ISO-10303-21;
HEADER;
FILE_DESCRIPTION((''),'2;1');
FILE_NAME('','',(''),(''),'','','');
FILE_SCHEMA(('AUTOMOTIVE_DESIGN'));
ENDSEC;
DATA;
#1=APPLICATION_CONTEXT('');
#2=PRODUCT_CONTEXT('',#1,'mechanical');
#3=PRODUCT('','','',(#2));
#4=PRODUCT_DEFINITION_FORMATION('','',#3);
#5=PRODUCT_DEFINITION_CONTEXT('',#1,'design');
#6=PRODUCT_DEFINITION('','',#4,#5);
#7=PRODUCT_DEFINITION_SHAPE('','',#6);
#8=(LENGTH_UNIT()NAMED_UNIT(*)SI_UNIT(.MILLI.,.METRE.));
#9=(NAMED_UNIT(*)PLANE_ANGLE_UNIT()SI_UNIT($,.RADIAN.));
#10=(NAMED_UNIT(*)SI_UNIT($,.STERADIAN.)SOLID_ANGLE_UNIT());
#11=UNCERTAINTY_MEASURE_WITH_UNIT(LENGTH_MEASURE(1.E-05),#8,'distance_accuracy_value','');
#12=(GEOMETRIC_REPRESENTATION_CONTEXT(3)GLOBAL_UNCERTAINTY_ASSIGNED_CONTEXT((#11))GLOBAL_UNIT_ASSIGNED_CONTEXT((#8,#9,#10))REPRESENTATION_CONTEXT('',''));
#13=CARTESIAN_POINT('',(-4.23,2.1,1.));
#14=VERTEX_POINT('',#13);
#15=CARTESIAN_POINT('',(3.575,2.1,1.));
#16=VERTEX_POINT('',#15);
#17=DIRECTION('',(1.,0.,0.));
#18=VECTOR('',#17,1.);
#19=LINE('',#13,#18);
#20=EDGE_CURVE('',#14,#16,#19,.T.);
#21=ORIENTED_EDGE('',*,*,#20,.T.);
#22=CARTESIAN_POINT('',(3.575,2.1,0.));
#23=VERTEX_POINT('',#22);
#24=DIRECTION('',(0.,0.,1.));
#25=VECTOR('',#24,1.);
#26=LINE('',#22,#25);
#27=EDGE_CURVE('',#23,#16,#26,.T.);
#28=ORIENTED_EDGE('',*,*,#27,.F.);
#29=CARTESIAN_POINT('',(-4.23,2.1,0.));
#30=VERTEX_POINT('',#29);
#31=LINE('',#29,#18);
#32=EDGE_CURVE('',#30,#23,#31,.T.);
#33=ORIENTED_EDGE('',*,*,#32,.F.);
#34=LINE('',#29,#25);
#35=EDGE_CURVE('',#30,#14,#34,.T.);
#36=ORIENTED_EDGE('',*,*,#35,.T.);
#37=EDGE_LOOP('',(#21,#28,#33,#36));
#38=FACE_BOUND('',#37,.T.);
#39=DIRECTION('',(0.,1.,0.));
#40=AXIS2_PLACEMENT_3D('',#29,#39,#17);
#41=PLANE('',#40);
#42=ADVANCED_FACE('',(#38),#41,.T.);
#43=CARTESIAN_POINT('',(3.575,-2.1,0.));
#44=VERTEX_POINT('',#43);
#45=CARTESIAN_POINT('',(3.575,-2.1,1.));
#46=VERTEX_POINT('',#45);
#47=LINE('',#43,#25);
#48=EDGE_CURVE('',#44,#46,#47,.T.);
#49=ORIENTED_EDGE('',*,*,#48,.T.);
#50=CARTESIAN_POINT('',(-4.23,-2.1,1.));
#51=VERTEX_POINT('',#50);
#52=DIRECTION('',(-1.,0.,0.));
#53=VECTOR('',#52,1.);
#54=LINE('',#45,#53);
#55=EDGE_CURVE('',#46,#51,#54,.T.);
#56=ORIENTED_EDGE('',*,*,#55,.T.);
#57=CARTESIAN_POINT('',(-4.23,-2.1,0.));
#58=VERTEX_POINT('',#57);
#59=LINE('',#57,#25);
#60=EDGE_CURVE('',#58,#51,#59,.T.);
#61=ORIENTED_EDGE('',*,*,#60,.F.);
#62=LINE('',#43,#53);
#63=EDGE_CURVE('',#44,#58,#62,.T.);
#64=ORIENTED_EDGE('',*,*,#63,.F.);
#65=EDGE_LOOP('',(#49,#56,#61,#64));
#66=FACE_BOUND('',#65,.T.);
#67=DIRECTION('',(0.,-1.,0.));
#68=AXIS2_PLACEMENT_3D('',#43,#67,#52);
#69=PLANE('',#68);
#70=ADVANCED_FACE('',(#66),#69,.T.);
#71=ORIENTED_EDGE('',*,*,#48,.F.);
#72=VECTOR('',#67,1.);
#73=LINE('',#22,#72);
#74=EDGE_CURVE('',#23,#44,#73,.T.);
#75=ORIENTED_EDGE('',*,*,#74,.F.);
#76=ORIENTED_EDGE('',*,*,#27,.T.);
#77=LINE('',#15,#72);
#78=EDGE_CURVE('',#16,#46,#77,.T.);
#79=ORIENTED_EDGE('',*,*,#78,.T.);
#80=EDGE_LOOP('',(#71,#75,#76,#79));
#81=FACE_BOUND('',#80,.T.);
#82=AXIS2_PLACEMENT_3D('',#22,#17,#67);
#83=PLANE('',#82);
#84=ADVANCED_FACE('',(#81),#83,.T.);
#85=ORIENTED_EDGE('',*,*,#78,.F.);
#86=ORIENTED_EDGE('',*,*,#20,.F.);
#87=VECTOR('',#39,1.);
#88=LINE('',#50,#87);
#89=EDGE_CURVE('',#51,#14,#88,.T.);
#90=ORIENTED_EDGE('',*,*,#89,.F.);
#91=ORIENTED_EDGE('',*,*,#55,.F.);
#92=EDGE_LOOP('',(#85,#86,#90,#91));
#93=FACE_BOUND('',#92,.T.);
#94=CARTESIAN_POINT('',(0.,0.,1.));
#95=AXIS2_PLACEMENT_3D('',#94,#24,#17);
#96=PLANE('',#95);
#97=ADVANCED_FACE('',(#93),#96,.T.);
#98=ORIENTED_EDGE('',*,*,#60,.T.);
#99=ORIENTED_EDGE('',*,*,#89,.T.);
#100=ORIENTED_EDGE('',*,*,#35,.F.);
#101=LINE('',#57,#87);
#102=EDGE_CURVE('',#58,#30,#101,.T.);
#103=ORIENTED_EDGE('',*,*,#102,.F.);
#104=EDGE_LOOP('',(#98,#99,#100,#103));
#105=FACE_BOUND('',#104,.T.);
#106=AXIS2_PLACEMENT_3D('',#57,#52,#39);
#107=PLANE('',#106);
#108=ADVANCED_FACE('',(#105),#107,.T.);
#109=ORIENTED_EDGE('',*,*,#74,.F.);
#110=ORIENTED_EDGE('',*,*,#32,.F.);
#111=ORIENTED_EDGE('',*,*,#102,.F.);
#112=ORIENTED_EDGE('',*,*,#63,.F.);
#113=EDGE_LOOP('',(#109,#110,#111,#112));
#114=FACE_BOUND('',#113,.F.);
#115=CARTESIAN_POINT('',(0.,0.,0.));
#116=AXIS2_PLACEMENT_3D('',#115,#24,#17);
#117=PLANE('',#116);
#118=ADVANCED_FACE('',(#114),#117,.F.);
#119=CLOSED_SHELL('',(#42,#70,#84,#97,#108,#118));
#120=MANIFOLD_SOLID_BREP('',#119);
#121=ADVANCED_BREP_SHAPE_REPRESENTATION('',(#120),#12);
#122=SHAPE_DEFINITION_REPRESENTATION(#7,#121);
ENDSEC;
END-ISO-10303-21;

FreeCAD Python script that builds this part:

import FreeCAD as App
import Part
import Sketcher

doc = App.newDocument("Part")
body = doc.addObject("PartDesign::Body", "Body")

# Sketch on XY plane
sketch1 = doc.addObject("Sketcher::SketchObject", "Sketch")
body.addObject(sketch1)
sketch1.AttachmentSupport = (doc.XY_Plane, [""])
sketch1.MapMode = "FlatFace"
sketch1.addGeometry(Part.LineSegment(App.Vector(-4.2, 2.1, 0), App.Vector(-4.2, -2.1, 0)), False)
sketch1.addGeometry(Part.LineSegment(App.Vector(-4.2, -2.1, 0), App.Vector(3.6, -2.1, 0)), False)
sketch1.addGeometry(Part.LineSegment(App.Vector(3.6, -2.1, 0), App.Vector(3.6, 2.1, 0)), False)
sketch1.addGeometry(Part.LineSegment(App.Vector(3.6, 2.1, 0), App.Vector(-4.2, 2.1, 0)), False)
sketch1.addConstraint(Sketcher.Constraint("Coincident", 0, 2, 1, 1))
sketch1.addConstraint(Sketcher.Constraint("Coincident", 1, 2, 2, 1))
sketch1.addConstraint(Sketcher.Constraint("Coincident", 2, 2, 3, 1))
sketch1.addConstraint(Sketcher.Constraint("Coincident", 3, 2, 0, 1))
sketch1.addConstraint(Sketcher.Constraint("Vertical", 0))
sketch1.addConstraint(Sketcher.Constraint("Horizontal", 1))
sketch1.addConstraint(Sketcher.Constraint("Vertical", 2))
sketch1.addConstraint(Sketcher.Constraint("Horizontal", 3))
sketch1.addConstraint(Sketcher.Constraint("DistanceY", 0, 2, 0, 1, 4.2))
sketch1.addConstraint(Sketcher.Constraint("DistanceY", 0, 2, -1, 1, 2.1))
sketch1.addConstraint(Sketcher.Constraint("DistanceX", 1, 1, 1, 2, 7.805))
sketch1.addConstraint(Sketcher.Constraint("DistanceX", 0, 2, -1, 1, 4.23))
pad1 = doc.addObject("PartDesign::Pad", "Pad")
body.addObject(pad1)
pad1.Profile = sketch1
pad1.Length = 1

doc.recompute()
